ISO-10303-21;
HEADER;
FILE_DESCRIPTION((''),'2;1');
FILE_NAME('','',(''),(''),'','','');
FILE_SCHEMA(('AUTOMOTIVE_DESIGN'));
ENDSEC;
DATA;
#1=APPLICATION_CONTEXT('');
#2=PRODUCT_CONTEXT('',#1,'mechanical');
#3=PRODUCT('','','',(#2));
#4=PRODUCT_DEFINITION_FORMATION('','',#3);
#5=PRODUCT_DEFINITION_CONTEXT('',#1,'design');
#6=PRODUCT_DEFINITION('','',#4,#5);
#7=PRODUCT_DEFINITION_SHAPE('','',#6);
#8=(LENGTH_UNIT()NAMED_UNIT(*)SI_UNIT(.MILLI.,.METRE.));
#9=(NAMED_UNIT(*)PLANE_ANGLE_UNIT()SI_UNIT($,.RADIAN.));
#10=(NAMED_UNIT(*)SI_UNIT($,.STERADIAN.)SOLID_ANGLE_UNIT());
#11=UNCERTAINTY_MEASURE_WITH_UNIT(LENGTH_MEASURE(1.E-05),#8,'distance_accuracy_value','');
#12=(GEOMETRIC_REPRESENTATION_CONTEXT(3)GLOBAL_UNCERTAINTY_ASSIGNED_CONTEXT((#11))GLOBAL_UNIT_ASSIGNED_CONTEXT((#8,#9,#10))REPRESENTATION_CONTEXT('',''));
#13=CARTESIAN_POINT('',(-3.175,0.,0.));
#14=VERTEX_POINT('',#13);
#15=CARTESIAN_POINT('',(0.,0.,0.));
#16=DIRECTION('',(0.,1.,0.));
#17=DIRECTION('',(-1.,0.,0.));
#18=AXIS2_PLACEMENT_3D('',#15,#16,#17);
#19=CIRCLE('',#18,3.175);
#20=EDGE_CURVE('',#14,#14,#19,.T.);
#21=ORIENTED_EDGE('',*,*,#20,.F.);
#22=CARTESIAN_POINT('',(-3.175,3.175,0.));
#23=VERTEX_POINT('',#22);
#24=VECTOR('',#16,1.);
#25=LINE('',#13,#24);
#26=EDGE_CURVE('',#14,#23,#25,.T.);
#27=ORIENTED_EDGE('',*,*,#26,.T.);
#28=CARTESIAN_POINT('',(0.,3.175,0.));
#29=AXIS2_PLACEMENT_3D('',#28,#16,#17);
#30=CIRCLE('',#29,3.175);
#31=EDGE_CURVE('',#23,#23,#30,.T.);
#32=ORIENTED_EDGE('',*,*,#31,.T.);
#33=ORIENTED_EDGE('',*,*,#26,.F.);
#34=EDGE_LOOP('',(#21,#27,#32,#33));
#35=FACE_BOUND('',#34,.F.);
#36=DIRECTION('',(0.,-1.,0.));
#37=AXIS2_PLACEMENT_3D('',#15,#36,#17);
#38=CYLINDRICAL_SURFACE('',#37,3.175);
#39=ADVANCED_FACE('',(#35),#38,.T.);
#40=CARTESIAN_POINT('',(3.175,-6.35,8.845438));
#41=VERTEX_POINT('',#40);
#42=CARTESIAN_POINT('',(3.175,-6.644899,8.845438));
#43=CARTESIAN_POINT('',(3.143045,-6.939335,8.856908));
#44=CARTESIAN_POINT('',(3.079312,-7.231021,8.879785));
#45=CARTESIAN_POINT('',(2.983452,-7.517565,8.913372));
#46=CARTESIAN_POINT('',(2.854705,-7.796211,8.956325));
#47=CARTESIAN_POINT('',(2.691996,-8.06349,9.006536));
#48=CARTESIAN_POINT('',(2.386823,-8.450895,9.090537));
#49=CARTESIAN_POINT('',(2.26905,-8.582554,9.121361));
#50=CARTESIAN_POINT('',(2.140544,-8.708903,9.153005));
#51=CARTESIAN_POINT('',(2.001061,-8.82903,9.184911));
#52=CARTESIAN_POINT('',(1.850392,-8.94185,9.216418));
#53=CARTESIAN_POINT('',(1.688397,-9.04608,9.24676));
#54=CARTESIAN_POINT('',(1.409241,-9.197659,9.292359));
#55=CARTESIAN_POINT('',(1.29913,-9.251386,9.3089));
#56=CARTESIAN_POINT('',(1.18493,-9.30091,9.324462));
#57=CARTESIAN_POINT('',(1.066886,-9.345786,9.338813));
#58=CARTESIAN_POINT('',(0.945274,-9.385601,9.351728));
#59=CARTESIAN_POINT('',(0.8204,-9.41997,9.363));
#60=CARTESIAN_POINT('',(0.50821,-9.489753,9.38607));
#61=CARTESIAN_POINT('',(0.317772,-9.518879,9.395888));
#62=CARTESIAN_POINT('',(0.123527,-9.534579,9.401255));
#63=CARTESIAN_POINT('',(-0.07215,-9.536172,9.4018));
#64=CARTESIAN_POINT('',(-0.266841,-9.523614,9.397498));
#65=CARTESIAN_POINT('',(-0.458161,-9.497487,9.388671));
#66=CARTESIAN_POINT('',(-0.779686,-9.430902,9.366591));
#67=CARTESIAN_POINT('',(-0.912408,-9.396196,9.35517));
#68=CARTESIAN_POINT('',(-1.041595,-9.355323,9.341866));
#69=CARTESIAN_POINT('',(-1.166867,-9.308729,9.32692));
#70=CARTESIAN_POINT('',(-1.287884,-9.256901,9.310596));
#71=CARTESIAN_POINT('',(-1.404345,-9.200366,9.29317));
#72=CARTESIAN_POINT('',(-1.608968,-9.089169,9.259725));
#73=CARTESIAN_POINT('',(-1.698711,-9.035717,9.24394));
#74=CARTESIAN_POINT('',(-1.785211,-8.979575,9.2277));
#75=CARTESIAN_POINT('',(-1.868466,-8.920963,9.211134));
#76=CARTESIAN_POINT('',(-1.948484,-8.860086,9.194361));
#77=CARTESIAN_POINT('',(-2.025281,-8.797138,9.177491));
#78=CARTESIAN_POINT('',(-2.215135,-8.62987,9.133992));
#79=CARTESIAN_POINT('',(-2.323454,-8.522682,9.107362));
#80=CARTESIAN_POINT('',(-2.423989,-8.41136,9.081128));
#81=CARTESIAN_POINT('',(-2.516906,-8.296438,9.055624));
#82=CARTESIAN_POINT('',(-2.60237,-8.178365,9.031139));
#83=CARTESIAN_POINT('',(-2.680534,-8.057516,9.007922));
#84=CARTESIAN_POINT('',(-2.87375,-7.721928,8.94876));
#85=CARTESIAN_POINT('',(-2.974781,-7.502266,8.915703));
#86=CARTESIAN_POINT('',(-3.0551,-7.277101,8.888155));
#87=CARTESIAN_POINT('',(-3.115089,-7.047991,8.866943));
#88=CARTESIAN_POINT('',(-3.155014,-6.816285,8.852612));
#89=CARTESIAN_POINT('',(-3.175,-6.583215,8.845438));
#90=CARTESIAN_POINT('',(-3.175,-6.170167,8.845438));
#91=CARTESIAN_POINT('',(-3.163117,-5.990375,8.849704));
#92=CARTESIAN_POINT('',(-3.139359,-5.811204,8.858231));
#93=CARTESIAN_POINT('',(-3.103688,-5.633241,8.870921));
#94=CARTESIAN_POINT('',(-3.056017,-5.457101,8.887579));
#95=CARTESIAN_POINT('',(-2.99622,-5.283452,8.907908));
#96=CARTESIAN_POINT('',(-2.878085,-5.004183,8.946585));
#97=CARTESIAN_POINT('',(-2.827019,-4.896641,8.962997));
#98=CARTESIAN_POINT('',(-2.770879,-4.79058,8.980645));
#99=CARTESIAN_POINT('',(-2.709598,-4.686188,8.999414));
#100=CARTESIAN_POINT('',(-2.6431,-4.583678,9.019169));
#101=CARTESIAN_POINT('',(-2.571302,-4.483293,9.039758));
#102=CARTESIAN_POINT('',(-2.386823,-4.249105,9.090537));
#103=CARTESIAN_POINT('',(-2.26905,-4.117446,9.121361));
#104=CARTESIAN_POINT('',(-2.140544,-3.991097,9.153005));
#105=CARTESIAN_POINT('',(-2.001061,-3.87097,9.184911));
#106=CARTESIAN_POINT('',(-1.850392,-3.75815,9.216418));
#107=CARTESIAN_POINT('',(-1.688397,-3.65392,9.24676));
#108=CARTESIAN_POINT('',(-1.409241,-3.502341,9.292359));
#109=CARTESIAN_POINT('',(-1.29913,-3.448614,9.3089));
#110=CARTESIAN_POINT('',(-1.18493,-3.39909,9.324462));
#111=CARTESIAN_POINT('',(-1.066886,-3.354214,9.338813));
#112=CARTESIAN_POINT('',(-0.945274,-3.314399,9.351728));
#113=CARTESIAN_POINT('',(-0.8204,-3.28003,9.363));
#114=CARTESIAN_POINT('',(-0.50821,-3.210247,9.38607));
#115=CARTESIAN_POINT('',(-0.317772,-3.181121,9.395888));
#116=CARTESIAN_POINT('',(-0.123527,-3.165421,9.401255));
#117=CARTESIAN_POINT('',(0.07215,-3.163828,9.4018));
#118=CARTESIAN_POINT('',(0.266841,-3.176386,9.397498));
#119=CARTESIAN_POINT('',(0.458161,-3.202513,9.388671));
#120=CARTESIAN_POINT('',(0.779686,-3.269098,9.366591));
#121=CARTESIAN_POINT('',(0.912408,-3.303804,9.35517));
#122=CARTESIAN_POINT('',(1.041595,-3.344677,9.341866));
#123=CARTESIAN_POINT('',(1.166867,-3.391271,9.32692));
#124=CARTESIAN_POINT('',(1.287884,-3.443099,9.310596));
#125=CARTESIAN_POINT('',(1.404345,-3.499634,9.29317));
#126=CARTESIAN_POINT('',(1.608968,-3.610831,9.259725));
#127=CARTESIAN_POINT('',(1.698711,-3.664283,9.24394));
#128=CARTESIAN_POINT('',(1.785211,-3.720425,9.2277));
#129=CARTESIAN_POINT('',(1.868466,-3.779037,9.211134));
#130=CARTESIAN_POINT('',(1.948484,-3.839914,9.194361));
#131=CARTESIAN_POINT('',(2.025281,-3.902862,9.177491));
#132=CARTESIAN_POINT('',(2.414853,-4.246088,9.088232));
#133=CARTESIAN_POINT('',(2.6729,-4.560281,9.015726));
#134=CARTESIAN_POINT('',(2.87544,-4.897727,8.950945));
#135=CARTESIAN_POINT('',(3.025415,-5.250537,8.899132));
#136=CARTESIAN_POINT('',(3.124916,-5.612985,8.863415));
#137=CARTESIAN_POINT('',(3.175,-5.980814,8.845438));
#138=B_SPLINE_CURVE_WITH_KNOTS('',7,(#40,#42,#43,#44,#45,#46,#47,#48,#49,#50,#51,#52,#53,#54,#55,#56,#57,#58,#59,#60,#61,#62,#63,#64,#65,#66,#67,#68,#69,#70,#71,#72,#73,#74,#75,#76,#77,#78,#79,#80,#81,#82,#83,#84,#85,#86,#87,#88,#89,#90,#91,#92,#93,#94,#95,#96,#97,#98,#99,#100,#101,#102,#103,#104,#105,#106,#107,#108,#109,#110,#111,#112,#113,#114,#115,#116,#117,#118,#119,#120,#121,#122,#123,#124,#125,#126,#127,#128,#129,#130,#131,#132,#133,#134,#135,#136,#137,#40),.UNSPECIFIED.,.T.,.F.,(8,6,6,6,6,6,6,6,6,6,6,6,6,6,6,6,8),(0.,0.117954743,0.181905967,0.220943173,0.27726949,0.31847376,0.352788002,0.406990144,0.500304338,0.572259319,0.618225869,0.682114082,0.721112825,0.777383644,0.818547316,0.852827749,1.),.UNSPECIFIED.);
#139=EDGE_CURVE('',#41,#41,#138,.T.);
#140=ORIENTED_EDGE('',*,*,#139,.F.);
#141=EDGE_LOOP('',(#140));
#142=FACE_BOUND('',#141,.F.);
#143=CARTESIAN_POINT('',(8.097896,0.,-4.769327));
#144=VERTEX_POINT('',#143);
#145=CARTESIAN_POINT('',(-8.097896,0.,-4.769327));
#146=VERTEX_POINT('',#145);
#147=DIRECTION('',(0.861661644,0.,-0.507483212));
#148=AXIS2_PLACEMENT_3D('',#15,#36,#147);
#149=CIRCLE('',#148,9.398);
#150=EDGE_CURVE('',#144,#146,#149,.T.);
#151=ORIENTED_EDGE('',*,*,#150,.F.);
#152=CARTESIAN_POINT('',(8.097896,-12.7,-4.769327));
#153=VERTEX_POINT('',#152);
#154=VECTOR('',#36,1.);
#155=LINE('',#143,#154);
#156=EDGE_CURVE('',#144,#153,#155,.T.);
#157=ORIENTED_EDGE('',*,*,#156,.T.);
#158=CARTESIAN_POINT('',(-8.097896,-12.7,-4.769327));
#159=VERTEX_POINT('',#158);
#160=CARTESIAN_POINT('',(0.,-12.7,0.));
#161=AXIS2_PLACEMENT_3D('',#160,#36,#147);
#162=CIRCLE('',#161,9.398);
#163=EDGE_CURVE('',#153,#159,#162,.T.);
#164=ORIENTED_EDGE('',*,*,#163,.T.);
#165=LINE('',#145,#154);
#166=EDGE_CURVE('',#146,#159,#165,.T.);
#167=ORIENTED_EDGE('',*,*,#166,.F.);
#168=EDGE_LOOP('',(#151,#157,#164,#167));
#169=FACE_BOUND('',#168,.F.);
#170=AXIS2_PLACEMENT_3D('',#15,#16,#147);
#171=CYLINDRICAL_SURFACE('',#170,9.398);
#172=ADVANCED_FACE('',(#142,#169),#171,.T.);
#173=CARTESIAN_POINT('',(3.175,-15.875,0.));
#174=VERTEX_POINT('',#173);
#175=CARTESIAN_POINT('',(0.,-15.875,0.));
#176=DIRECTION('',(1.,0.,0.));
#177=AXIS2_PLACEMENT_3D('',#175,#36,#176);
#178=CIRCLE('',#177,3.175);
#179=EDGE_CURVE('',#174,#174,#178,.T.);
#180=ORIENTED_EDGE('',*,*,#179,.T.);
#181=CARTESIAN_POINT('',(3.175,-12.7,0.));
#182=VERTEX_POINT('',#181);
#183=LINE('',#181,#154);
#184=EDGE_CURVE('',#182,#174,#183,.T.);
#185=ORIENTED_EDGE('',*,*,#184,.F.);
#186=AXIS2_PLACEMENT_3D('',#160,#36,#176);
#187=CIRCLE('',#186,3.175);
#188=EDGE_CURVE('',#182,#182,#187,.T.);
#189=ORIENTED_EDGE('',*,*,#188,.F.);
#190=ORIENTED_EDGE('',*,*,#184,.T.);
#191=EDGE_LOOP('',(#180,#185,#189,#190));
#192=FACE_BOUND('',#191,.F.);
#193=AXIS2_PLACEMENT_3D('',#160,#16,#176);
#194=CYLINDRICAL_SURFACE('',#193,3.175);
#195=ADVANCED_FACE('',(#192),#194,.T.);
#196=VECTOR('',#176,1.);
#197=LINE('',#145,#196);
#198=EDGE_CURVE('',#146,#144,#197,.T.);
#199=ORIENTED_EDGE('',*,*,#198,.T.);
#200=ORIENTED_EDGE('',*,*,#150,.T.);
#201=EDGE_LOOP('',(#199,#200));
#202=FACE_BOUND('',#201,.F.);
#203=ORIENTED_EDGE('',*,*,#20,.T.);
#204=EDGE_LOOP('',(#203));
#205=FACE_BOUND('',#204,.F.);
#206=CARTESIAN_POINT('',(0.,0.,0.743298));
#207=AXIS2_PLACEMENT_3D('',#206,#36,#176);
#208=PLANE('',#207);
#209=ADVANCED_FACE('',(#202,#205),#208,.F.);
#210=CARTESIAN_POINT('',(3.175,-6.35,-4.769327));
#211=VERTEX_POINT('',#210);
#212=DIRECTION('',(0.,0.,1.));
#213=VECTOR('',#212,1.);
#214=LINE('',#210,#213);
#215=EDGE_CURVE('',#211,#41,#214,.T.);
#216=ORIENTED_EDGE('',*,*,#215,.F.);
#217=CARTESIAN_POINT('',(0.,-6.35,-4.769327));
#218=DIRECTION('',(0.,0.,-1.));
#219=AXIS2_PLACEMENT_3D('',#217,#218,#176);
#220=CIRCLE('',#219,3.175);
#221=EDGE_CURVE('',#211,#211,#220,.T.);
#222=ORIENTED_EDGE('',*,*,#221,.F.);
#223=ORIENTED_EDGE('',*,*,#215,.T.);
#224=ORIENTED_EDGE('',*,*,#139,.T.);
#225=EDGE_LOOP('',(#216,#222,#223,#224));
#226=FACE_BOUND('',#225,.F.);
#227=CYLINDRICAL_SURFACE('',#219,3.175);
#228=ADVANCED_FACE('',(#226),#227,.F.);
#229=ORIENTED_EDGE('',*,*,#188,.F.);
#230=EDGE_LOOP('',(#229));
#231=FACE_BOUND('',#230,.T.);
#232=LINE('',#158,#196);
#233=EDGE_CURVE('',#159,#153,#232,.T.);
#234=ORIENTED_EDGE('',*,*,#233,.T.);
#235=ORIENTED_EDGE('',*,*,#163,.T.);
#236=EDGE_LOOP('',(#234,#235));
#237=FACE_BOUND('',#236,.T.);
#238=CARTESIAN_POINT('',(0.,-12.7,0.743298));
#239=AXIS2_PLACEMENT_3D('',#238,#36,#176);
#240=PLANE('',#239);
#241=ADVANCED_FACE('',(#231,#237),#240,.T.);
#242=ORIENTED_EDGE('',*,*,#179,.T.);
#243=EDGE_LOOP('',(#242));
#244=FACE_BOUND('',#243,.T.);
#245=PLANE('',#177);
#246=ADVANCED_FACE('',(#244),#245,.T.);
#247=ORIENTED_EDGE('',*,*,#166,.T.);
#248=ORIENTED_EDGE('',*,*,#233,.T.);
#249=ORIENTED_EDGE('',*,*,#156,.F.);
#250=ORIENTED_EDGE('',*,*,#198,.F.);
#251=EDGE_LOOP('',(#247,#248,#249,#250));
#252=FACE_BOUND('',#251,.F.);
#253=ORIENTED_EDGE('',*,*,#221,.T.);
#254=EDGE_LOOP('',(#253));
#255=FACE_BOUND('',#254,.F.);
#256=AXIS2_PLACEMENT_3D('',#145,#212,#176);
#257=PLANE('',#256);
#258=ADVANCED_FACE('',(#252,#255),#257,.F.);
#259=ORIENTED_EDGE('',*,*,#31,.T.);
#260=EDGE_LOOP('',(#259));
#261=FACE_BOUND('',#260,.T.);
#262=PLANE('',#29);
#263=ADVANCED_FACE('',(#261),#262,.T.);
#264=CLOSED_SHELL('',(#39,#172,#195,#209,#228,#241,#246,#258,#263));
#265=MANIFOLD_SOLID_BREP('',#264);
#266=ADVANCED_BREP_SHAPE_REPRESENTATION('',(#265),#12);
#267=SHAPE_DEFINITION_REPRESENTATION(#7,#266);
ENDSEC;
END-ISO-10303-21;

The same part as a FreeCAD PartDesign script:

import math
import FreeCAD as App
import Part
import Sketcher
from FreeCAD import Vector
Q = App.Units.Quantity

doc = App.newDocument("Part")
body = doc.addObject("PartDesign::Body", "Body")

sketch1 = doc.addObject("Sketcher::SketchObject", "Sketch")
body.addObject(sketch1)
sketch1.AttachmentSupport = (doc.XZ_Plane, [""])
sketch1.MapMode = "FlatFace"
sketch1.addGeometry([
    Part.LineSegment(Vector(-8.097896, -4.769327, 0), Vector(8.097896, -4.769327, 0)),
    Part.ArcOfCircle(Part.Circle(Vector(0, 0, 0), Vector(0, 0, 1), 9.398), math.radians(-30.496333), math.radians(210.496333)),
], False)
sketch1.addConstraint([
    Sketcher.Constraint("Coincident", 0, 1, 1, 2),
    Sketcher.Constraint("Coincident", 1, 1, 0, 2),
    Sketcher.Constraint("Horizontal", 0),
    Sketcher.Constraint("Coincident", 1, 3, -1, 1),
    Sketcher.Constraint("Radius", 1, Q("0.37 in")),
    Sketcher.Constraint("DistanceX", 0, 1, 0, 2, Q("16.195792 mm")),
])
pad1 = doc.addObject("PartDesign::Pad", "Pad")
body.addObject(pad1)
pad1.Profile = sketch1
pad1.Length = Q("0.5 in")

sketch2 = doc.addObject("Sketcher::SketchObject", "Sketch001")
body.addObject(sketch2)
sketch2.AttachmentSupport = (doc.XZ_Plane, [""])
sketch2.MapMode = "FlatFace"
sketch2.AttachmentOffset = App.Placement(Vector(0, 0, 0.5 * 25.4), App.Rotation())
sketch2.addGeometry(Part.Circle(Vector(0, 0, 0), Vector(0, 0, 1), 3.175), False)
sketch2.addConstraint([
    Sketcher.Constraint("Coincident", 0, 3, -1, 1),
    Sketcher.Constraint("Diameter", 0, Q("0.25 in")),
])
pad2 = doc.addObject("PartDesign::Pad", "Pad001")
body.addObject(pad2)
pad2.Profile = sketch2
pad2.Length = Q("0.125 in")

sketch3 = doc.addObject("Sketcher::SketchObject", "Sketch002")
body.addObject(sketch3)
sketch3.AttachmentSupport = (doc.XZ_Plane, [""])
sketch3.MapMode = "FlatFace"
sketch3.addGeometry(Part.Circle(Vector(0, 0, 0), Vector(0, 0, 1), 3.175), False)
sketch3.addConstraint([
    Sketcher.Constraint("Coincident", 0, 3, -1, 1),
    Sketcher.Constraint("Diameter", 0, Q("0.25 in")),
])
pad3 = doc.addObject("PartDesign::Pad", "Pad002")
body.addObject(pad3)
pad3.Profile = sketch3
pad3.Length = Q("0.125 in")
pad3.Reversed = True

sketch4 = doc.addObject("Sketcher::SketchObject", "Sketch003")
body.addObject(sketch4)
sketch4.AttachmentSupport = (doc.XY_Plane, [""])
sketch4.MapMode = "FlatFace"
sketch4.AttachmentOffset = App.Placement(Vector(0, 0, -4.769327), App.Rotation())
sketch4.addGeometry(Part.Circle(Vector(0, -6.35, 0), Vector(0, 0, 1), 3.175), False)
sketch4.addConstraint([
    Sketcher.Constraint("PointOnObject", 0, 3, -2),
    Sketcher.Constraint("Diameter", 0, Q("0.25 in")),
    Sketcher.Constraint("DistanceY", 0, 3, -1, 1, Q("0.25 in")),
])
pocket1 = doc.addObject("PartDesign::Pocket", "Pocket")
body.addObject(pocket1)
pocket1.Profile = sketch4
pocket1.Length = Q("1 in")
pocket1.Reversed = True
pocket2 = doc.addObject("PartDesign::Pocket", "Pocket001")
body.addObject(pocket2)
pocket2.Profile = sketch4
pocket2.Length = Q("1 in")
pocket2.Reversed = True

doc.recompute()
